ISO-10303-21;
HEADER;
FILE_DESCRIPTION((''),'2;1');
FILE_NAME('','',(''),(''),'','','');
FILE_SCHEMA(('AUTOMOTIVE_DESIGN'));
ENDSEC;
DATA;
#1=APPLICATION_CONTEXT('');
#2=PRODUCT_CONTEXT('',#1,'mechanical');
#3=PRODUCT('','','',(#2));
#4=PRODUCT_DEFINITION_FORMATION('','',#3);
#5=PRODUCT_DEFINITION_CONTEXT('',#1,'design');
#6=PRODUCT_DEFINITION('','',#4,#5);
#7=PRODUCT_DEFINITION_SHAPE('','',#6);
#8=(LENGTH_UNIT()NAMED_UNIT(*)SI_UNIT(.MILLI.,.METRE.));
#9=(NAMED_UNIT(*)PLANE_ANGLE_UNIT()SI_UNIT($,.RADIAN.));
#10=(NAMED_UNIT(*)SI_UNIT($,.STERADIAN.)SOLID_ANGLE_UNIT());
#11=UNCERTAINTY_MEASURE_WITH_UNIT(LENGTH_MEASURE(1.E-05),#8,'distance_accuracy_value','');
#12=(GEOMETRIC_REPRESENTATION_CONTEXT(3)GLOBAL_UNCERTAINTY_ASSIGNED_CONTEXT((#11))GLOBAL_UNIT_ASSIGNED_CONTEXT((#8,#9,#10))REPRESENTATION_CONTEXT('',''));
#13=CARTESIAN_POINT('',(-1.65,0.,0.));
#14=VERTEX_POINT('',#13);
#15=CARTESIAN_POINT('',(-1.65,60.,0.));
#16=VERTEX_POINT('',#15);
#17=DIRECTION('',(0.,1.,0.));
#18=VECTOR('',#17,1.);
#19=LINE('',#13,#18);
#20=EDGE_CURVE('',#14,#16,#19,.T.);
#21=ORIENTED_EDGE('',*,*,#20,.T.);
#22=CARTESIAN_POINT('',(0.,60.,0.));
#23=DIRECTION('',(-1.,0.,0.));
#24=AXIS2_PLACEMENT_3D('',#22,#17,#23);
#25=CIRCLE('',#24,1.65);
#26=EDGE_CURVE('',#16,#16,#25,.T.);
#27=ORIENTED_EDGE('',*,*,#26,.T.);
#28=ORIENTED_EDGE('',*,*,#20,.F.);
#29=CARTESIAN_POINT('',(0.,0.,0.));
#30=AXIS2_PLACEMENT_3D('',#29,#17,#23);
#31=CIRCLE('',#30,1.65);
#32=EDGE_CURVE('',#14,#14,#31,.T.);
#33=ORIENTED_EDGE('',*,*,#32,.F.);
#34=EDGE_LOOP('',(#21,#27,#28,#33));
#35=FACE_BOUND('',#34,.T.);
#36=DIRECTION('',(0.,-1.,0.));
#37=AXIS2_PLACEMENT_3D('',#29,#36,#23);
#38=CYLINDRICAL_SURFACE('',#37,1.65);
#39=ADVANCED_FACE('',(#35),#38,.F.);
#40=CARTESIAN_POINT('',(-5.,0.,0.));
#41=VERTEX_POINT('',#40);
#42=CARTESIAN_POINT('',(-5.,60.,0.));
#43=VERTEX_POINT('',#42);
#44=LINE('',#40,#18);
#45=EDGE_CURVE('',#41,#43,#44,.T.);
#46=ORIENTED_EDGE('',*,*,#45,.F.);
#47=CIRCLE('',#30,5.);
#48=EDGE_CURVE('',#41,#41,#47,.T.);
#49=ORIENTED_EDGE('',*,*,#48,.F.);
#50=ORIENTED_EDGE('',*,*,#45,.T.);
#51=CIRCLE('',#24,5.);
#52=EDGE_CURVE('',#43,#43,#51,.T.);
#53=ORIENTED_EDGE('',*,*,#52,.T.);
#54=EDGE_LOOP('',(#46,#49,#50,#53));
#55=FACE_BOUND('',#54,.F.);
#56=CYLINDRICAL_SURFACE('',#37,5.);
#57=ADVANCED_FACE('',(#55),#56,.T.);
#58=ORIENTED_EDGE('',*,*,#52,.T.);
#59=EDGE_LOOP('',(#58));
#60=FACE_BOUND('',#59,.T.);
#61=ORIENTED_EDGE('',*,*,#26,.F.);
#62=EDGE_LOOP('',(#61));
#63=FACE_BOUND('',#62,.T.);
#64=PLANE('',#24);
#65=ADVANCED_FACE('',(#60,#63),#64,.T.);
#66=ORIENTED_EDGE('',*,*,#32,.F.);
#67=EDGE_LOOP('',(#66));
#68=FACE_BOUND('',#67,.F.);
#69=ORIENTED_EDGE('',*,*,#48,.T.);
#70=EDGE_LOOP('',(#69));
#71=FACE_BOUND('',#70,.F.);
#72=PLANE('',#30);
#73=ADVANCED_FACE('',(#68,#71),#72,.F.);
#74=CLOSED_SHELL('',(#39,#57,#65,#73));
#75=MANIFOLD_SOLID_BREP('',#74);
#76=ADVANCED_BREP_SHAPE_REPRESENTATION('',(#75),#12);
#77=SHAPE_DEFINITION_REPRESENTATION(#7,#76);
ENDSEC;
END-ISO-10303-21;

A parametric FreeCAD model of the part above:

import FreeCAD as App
import Part
import Sketcher

doc = App.newDocument("Part")
body = doc.addObject("PartDesign::Body", "Body")

sketch1 = body.newObject("Sketcher::SketchObject", "Sketch")
sketch1.AttachmentSupport = (doc.getObject("XZ_Plane"), [""])
sketch1.MapMode = "FlatFace"
sketch1.addGeometry([
    Part.Circle(App.Vector(0, 0, 0), App.Vector(0, 0, 1), 5),
    Part.Circle(App.Vector(0, 0, 0), App.Vector(0, 0, 1), 1.6),
], False)
sketch1.addConstraint([
    Sketcher.Constraint("Coincident", 0, 3, -1, 1),
    Sketcher.Constraint("Coincident", 1, 3, -1, 1),
    Sketcher.Constraint("Diameter", 0, 10.0),
    Sketcher.Constraint("Diameter", 1, 3.3),
])
pad1 = body.newObject("PartDesign::Pad", "Pad")
pad1.Profile = sketch1
pad1.Length = 60
pad1.Reversed = True

doc.recompute()
